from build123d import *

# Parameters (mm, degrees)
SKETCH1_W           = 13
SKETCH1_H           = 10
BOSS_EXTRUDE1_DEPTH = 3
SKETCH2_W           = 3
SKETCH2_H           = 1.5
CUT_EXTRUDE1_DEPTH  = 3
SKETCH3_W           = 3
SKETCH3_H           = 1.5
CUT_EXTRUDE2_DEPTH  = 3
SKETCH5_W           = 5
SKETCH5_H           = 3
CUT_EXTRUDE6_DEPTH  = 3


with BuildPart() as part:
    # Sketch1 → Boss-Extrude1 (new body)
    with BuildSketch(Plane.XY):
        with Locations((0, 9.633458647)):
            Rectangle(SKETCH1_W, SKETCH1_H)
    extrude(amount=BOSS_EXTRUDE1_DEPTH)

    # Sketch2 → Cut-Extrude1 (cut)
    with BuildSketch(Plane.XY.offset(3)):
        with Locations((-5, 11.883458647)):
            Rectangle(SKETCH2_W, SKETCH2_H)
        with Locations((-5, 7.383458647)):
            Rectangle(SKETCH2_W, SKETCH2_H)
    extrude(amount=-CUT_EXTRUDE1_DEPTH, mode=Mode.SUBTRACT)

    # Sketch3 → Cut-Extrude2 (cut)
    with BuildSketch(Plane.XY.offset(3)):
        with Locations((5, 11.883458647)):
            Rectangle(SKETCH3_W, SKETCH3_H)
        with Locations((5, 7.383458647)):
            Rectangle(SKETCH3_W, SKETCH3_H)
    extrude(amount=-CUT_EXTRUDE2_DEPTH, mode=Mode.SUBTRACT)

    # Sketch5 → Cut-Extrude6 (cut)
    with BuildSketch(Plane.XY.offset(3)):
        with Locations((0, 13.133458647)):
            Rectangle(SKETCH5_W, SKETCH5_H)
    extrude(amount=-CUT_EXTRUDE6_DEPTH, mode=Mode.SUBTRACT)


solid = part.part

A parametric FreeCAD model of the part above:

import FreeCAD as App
import Part
import Sketcher
from FreeCAD import Vector
Q = App.Units.Quantity

doc = App.newDocument("Part")
body = doc.addObject("PartDesign::Body", "Body")

# Sketch on XY plane
sketch1 = body.newObject("Sketcher::SketchObject", "Sketch")
sketch1.AttachmentSupport = (doc.getObject("XY_Plane"), [""])
sketch1.MapMode = "FlatFace"
sketch1.addGeometry([
    Part.LineSegment(Vector(-6, 15, 0), Vector(-6, 5, 0)),
    Part.LineSegment(Vector(-6, 5, 0), Vector(6, 5, 0)),
    Part.LineSegment(Vector(6, 5, 0), Vector(6, 15, 0)),
    Part.LineSegment(Vector(6, 15, 0), Vector(-6, 15, 0)),
], False)
sketch1.addConstraint([
    Sketcher.Constraint("Coincident", 0, 2, 1, 1),
    Sketcher.Constraint("Coincident", 1, 2, 2, 1),
    Sketcher.Constraint("Coincident", 2, 2, 3, 1),
    Sketcher.Constraint("Coincident", 3, 2, 0, 1),
    Sketcher.Constraint("Vertical", 0),
    Sketcher.Constraint("Horizontal", 1),
    Sketcher.Constraint("Vertical", 2),
    Sketcher.Constraint("Horizontal", 3),
    Sketcher.Constraint("DistanceX", 1, 1, 1, 2, Q("13 mm")),
    Sketcher.Constraint("DistanceY", 0, 2, 0, 1, Q("10 mm")),
    Sketcher.Constraint("DistanceX", 0, 2, -1, 1, Q("6.5 mm")),
    Sketcher.Constraint("DistanceY", -1, 1, 0, 2, Q("4.633459 mm")),
])
pad1 = body.newObject("PartDesign::Pad", "Pad")
pad1.Profile = sketch1
pad1.Length = 3

# Sketch on XY plane
sketch2 = body.newObject("Sketcher::SketchObject", "Sketch001")
sketch2.AttachmentSupport = (doc.getObject("XY_Plane"), [""])
sketch2.MapMode = "FlatFace"
sketch2.AttachmentOffset = App.Placement(Vector(0, 0, 3), App.Rotation())
sketch2.addGeometry([
    Part.LineSegment(Vector(-6.5, 12.6, 0), Vector(-6.5, 11.1, 0)),  # 0
    Part.LineSegment(Vector(-6.5, 11.1, 0), Vector(-3.5, 11.1, 0)),  # 1
    Part.LineSegment(Vector(-3.5, 11.1, 0), Vector(-3.5, 12.6, 0)),  # 2
    Part.LineSegment(Vector(-3.5, 12.6, 0), Vector(-6.5, 12.6, 0)),  # 3
    Part.LineSegment(Vector(-6.5, 8.1, 0), Vector(-6.5, 6.6, 0)),  # 4
    Part.LineSegment(Vector(-6.5, 6.6, 0), Vector(-3.5, 6.6, 0)),  # 5
    Part.LineSegment(Vector(-3.5, 6.6, 0), Vector(-3.5, 8.1, 0)),  # 6
    Part.LineSegment(Vector(-3.5, 8.1, 0), Vector(-6.5, 8.1, 0)),  # 7
], False)
sketch2.addConstraint([
    Sketcher.Constraint("Coincident", 0, 2, 1, 1),
    Sketcher.Constraint("Coincident", 1, 2, 2, 1),
    Sketcher.Constraint("Coincident", 2, 2, 3, 1),
    Sketcher.Constraint("Coincident", 3, 2, 0, 1),
    Sketcher.Constraint("Coincident", 4, 2, 5, 1),
    Sketcher.Constraint("Coincident", 5, 2, 6, 1),
    Sketcher.Constraint("Coincident", 6, 2, 7, 1),
    Sketcher.Constraint("Coincident", 7, 2, 4, 1),
    Sketcher.Constraint("Vertical", 0),
    Sketcher.Constraint("Horizontal", 1),
    Sketcher.Constraint("Vertical", 2),
    Sketcher.Constraint("Horizontal", 3),
    Sketcher.Constraint("Vertical", 4),
    Sketcher.Constraint("Horizontal", 5),
    Sketcher.Constraint("Vertical", 6),
    Sketcher.Constraint("Horizontal", 7),
    Sketcher.Constraint("Vertical", 3, 2, 4, 2),
    Sketcher.Constraint("Vertical", 2, 2, 5, 2),
    Sketcher.Constraint("Equal", 2, 4),
    Sketcher.Constraint("DistanceX", 1, 1, 1, 2, Q("3 mm")),
    Sketcher.Constraint("DistanceY", 0, 2, 0, 1, Q("1.5 mm")),
    Sketcher.Constraint("DistanceY", 4, 2, 3, 2, Q("6 mm")),
    Sketcher.Constraint("DistanceX", 0, 2, -1, 1, Q("6.5 mm")),
    Sketcher.Constraint("DistanceY", -1, 1, 0, 2, Q("11.133459 mm")),
])
pocket1 = body.newObject("PartDesign::Pocket", "Pocket")
pocket1.Profile = sketch2
pocket1.Length = 3

# Sketch on XY plane
sketch3 = body.newObject("Sketcher::SketchObject", "Sketch002")
sketch3.AttachmentSupport = (doc.getObject("XY_Plane"), [""])
sketch3.MapMode = "FlatFace"
sketch3.AttachmentOffset = App.Placement(Vector(0, 0, 3), App.Rotation())
sketch3.addGeometry([
    Part.LineSegment(Vector(3.5, 12.6, 0), Vector(3.5, 11.1, 0)),  # 0
    Part.LineSegment(Vector(3.5, 11.1, 0), Vector(6.5, 11.1, 0)),  # 1
    Part.LineSegment(Vector(6.5, 11.1, 0), Vector(6.5, 12.6, 0)),  # 2
    Part.LineSegment(Vector(6.5, 12.6, 0), Vector(3.5, 12.6, 0)),  # 3
    Part.LineSegment(Vector(3.5, 8.1, 0), Vector(3.5, 6.6, 0)),  # 4
    Part.LineSegment(Vector(3.5, 6.6, 0), Vector(6.5, 6.6, 0)),  # 5
    Part.LineSegment(Vector(6.5, 6.6, 0), Vector(6.5, 8.1, 0)),  # 6
    Part.LineSegment(Vector(6.5, 8.1, 0), Vector(3.5, 8.1, 0)),  # 7
], False)
sketch3.addConstraint([
    Sketcher.Constraint("Coincident", 0, 2, 1, 1),
    Sketcher.Constraint("Coincident", 1, 2, 2, 1),
    Sketcher.Constraint("Coincident", 2, 2, 3, 1),
    Sketcher.Constraint("Coincident", 3, 2, 0, 1),
    Sketcher.Constraint("Coincident", 4, 2, 5, 1),
    Sketcher.Constraint("Coincident", 5, 2, 6, 1),
    Sketcher.Constraint("Coincident", 6, 2, 7, 1),
    Sketcher.Constraint("Coincident", 7, 2, 4, 1),
    Sketcher.Constraint("Vertical", 0),
    Sketcher.Constraint("Horizontal", 1),
    Sketcher.Constraint("Vertical", 2),
    Sketcher.Constraint("Horizontal", 3),
    Sketcher.Constraint("Vertical", 4),
    Sketcher.Constraint("Horizontal", 5),
    Sketcher.Constraint("Vertical", 6),
    Sketcher.Constraint("Horizontal", 7),
    Sketcher.Constraint("Vertical", 3, 2, 4, 2),
    Sketcher.Constraint("Vertical", 2, 2, 5, 2),
    Sketcher.Constraint("Equal", 2, 4),
    Sketcher.Constraint("DistanceX", 1, 1, 1, 2, Q("3 mm")),
    Sketcher.Constraint("DistanceY", 0, 2, 0, 1, Q("1.5 mm")),
    Sketcher.Constraint("DistanceY", 4, 2, 3, 2, Q("6 mm")),
    Sketcher.Constraint("DistanceX", -1, 1, 0, 2, Q("3.5 mm")),
    Sketcher.Constraint("DistanceY", -1, 1, 0, 2, Q("11.133459 mm")),
])
pocket2 = body.newObject("PartDesign::Pocket", "Pocket001")
pocket2.Profile = sketch3
pocket2.Length = 3

# Sketch on XY plane
sketch4 = body.newObject("Sketcher::SketchObject", "Sketch003")
sketch4.AttachmentSupport = (doc.getObject("XY_Plane"), [""])
sketch4.MapMode = "FlatFace"
sketch4.AttachmentOffset = App.Placement(Vector(0, 0, 3), App.Rotation())
sketch4.addGeometry([
    Part.LineSegment(Vector(-2.5, 14.6, 0), Vector(-2.5, 11.6, 0)),
    Part.LineSegment(Vector(-2.5, 11.6, 0), Vector(2.5, 11.6, 0)),
    Part.LineSegment(Vector(2.5, 11.6, 0), Vector(2.5, 14.6, 0)),
    Part.LineSegment(Vector(2.5, 14.6, 0), Vector(-2.5, 14.6, 0)),
], False)
sketch4.addConstraint([
    Sketcher.Constraint("Coincident", 0, 2, 1, 1),
    Sketcher.Constraint("Coincident", 1, 2, 2, 1),
    Sketcher.Constraint("Coincident", 2, 2, 3, 1),
    Sketcher.Constraint("Coincident", 3, 2, 0, 1),
    Sketcher.Constraint("Vertical", 0),
    Sketcher.Constraint("Horizontal", 1),
    Sketcher.Constraint("Vertical", 2),
    Sketcher.Constraint("Horizontal", 3),
    Sketcher.Constraint("DistanceX", 1, 1, 1, 2, Q("5 mm")),
    Sketcher.Constraint("DistanceY", 0, 2, 0, 1, Q("3 mm")),
    Sketcher.Constraint("DistanceX", 0, 2, -1, 1, Q("2.5 mm")),
    Sketcher.Constraint("DistanceY", -1, 1, 0, 2, Q("11.633459 mm")),
])
pocket3 = body.newObject("PartDesign::Pocket", "Pocket002")
pocket3.Profile = sketch4
pocket3.Length = 3

doc.recompute()
